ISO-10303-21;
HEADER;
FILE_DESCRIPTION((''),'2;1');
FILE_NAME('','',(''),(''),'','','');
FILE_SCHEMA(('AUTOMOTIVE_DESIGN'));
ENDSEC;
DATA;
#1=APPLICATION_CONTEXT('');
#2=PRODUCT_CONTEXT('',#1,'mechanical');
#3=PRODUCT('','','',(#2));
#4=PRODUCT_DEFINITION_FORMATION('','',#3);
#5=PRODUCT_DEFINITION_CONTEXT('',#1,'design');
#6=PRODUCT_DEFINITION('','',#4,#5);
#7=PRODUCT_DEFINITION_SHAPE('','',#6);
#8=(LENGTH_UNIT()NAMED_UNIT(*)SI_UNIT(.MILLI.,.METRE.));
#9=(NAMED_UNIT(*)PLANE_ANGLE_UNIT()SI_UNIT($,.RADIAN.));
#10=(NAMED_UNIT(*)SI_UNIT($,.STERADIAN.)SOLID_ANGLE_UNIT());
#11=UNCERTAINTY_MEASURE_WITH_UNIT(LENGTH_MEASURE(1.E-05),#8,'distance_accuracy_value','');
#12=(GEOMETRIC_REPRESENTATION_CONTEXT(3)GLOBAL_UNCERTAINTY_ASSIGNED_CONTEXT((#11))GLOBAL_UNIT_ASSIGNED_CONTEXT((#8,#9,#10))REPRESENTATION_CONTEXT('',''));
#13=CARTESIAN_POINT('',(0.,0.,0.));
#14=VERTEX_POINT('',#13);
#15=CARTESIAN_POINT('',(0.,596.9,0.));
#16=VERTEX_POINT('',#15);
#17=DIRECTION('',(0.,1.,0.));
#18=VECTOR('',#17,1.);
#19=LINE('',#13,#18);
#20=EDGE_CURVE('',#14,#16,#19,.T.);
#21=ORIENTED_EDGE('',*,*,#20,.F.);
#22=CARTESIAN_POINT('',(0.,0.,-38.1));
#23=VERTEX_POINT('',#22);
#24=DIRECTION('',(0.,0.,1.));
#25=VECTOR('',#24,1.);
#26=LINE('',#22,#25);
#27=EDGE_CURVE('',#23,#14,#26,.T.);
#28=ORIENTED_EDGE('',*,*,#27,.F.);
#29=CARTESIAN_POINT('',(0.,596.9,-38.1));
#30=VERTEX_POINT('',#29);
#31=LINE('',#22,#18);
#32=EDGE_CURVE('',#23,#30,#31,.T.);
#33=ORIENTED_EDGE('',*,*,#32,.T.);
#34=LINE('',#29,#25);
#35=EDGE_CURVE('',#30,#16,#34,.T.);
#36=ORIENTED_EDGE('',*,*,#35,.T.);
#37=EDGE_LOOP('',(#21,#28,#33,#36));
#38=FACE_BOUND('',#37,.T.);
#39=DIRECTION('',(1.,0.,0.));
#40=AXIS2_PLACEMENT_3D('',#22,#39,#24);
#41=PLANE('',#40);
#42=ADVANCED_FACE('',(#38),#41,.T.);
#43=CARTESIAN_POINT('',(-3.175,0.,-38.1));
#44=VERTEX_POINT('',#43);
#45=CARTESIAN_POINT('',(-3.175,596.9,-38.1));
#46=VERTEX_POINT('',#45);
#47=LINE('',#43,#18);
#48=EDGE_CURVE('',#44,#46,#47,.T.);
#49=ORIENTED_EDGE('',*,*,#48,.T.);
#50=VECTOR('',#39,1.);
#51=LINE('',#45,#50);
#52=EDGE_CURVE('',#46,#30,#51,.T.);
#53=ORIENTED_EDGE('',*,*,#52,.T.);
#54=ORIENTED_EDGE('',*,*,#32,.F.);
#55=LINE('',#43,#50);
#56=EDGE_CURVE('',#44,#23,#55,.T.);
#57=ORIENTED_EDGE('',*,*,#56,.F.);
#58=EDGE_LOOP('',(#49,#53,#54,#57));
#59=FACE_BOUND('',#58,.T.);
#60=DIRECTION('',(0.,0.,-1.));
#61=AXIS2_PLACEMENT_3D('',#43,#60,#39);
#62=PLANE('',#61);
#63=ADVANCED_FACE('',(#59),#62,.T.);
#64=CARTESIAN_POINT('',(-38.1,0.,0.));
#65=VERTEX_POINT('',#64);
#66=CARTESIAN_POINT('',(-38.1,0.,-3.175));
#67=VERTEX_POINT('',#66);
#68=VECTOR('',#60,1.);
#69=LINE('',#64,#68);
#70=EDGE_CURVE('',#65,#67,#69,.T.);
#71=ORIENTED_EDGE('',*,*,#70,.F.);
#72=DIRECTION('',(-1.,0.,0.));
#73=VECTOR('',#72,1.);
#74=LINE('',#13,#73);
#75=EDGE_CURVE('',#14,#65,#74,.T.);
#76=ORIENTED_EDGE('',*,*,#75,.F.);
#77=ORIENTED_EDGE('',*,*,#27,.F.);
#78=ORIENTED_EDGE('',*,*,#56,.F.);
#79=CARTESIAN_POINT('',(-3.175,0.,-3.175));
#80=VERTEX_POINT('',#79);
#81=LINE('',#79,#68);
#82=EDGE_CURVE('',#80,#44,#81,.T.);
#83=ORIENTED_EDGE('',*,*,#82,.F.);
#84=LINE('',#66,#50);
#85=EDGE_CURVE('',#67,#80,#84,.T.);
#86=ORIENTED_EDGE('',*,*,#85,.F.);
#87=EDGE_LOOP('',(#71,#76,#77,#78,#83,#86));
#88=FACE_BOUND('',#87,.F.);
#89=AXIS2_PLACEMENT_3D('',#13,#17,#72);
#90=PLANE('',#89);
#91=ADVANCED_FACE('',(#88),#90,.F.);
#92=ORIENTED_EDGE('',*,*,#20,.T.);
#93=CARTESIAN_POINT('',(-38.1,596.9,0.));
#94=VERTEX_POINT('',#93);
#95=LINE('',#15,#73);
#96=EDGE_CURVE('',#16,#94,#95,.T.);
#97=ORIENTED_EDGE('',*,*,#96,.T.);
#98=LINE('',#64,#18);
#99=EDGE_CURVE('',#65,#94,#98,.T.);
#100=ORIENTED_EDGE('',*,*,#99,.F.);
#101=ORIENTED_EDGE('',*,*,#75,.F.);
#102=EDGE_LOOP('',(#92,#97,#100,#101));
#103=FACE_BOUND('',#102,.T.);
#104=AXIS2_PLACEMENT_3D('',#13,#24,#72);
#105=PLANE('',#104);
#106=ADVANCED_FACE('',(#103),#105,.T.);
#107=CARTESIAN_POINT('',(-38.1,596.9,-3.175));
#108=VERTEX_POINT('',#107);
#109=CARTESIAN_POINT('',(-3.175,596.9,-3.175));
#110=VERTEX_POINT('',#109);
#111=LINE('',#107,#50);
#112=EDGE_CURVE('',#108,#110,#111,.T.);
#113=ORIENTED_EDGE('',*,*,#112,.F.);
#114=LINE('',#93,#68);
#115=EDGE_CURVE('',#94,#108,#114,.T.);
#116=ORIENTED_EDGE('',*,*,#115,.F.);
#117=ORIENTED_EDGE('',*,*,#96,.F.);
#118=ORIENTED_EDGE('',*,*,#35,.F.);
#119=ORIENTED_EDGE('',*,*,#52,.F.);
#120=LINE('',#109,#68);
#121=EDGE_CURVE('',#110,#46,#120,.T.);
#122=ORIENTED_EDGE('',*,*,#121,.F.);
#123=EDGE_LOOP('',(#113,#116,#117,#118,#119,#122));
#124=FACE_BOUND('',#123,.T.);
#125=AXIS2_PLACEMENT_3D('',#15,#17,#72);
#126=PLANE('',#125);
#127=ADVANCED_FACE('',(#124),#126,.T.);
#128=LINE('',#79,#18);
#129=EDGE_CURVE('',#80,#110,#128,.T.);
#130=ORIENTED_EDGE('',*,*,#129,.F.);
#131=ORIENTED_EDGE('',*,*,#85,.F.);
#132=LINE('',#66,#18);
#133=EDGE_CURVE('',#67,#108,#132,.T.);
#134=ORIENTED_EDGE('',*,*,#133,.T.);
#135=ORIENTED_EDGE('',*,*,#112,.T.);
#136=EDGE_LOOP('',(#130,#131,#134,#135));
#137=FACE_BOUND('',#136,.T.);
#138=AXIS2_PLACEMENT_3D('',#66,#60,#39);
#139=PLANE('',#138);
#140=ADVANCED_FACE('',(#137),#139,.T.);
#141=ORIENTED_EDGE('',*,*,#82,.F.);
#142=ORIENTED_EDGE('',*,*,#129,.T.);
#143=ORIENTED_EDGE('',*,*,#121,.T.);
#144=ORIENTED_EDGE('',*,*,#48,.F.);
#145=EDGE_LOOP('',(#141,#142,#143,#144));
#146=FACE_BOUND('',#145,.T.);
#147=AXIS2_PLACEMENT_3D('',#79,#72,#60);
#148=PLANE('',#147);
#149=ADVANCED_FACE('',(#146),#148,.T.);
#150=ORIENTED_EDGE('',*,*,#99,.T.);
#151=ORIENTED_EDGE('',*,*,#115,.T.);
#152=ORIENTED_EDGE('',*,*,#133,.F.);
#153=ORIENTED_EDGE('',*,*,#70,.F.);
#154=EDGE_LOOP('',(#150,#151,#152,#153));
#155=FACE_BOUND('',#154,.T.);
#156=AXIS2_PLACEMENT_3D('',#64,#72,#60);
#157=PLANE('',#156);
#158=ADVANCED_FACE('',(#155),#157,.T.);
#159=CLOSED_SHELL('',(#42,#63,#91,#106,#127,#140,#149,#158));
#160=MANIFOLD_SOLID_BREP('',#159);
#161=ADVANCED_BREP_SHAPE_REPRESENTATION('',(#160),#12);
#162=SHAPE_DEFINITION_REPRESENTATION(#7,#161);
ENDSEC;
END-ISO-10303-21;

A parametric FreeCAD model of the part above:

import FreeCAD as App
import Part
import Sketcher

V = App.Vector
Q = App.Units.Quantity


def add_polygon(sketch, points):
    """Adds a closed chain of lines whose ends are joined by coincident constraints."""
    first, n = sketch.GeometryCount, len(points)
    for a, b in zip(points, points[1:] + points[:1]):
        sketch.addGeometry(Part.LineSegment(App.Vector(*a, 0), App.Vector(*b, 0)), False)
    for i in range(n):
        sketch.addConstraint(Sketcher.Constraint("Coincident", first + i, 2, first + (i + 1) % n, 1))

doc = App.newDocument("Part")
body = doc.addObject("PartDesign::Body", "Body")

sketch1 = body.newObject("Sketcher::SketchObject", "Sketch")
sketch1.AttachmentSupport = (doc.getObject("XZ_Plane"), [""])
sketch1.MapMode = "FlatFace"
add_polygon(sketch1, [(-38.1, 0), (0, 0), (0, -38.1), (-3.175, -38.1), (-3.175, -3.175), (-38.1, -3.175)])
sketch1.addConstraint(Sketcher.Constraint("Horizontal", 0))
sketch1.addConstraint(Sketcher.Constraint("Vertical", 1))
sketch1.addConstraint(Sketcher.Constraint("Horizontal", 2))
sketch1.addConstraint(Sketcher.Constraint("Vertical", 3))
sketch1.addConstraint(Sketcher.Constraint("Horizontal", 4))
sketch1.addConstraint(Sketcher.Constraint("Vertical", 5))
sketch1.addConstraint(Sketcher.Constraint("Coincident", 0, 2, -1, 1))
sketch1.addConstraint(Sketcher.Constraint("Equal", 0, 1))
sketch1.addConstraint(Sketcher.Constraint("Equal", 4, 3))
sketch1.addConstraint(Sketcher.Constraint("DistanceX", 0, 1, 0, 2, Q("1.5 in")))
sketch1.addConstraint(Sketcher.Constraint("DistanceX", 2, 2, 2, 1, Q("0.125 in")))
pad1 = body.newObject("PartDesign::Pad", "Pad")
pad1.Profile = sketch1
pad1.Length = Q("23.5 in")
pad1.Reversed = True

doc.recompute()
